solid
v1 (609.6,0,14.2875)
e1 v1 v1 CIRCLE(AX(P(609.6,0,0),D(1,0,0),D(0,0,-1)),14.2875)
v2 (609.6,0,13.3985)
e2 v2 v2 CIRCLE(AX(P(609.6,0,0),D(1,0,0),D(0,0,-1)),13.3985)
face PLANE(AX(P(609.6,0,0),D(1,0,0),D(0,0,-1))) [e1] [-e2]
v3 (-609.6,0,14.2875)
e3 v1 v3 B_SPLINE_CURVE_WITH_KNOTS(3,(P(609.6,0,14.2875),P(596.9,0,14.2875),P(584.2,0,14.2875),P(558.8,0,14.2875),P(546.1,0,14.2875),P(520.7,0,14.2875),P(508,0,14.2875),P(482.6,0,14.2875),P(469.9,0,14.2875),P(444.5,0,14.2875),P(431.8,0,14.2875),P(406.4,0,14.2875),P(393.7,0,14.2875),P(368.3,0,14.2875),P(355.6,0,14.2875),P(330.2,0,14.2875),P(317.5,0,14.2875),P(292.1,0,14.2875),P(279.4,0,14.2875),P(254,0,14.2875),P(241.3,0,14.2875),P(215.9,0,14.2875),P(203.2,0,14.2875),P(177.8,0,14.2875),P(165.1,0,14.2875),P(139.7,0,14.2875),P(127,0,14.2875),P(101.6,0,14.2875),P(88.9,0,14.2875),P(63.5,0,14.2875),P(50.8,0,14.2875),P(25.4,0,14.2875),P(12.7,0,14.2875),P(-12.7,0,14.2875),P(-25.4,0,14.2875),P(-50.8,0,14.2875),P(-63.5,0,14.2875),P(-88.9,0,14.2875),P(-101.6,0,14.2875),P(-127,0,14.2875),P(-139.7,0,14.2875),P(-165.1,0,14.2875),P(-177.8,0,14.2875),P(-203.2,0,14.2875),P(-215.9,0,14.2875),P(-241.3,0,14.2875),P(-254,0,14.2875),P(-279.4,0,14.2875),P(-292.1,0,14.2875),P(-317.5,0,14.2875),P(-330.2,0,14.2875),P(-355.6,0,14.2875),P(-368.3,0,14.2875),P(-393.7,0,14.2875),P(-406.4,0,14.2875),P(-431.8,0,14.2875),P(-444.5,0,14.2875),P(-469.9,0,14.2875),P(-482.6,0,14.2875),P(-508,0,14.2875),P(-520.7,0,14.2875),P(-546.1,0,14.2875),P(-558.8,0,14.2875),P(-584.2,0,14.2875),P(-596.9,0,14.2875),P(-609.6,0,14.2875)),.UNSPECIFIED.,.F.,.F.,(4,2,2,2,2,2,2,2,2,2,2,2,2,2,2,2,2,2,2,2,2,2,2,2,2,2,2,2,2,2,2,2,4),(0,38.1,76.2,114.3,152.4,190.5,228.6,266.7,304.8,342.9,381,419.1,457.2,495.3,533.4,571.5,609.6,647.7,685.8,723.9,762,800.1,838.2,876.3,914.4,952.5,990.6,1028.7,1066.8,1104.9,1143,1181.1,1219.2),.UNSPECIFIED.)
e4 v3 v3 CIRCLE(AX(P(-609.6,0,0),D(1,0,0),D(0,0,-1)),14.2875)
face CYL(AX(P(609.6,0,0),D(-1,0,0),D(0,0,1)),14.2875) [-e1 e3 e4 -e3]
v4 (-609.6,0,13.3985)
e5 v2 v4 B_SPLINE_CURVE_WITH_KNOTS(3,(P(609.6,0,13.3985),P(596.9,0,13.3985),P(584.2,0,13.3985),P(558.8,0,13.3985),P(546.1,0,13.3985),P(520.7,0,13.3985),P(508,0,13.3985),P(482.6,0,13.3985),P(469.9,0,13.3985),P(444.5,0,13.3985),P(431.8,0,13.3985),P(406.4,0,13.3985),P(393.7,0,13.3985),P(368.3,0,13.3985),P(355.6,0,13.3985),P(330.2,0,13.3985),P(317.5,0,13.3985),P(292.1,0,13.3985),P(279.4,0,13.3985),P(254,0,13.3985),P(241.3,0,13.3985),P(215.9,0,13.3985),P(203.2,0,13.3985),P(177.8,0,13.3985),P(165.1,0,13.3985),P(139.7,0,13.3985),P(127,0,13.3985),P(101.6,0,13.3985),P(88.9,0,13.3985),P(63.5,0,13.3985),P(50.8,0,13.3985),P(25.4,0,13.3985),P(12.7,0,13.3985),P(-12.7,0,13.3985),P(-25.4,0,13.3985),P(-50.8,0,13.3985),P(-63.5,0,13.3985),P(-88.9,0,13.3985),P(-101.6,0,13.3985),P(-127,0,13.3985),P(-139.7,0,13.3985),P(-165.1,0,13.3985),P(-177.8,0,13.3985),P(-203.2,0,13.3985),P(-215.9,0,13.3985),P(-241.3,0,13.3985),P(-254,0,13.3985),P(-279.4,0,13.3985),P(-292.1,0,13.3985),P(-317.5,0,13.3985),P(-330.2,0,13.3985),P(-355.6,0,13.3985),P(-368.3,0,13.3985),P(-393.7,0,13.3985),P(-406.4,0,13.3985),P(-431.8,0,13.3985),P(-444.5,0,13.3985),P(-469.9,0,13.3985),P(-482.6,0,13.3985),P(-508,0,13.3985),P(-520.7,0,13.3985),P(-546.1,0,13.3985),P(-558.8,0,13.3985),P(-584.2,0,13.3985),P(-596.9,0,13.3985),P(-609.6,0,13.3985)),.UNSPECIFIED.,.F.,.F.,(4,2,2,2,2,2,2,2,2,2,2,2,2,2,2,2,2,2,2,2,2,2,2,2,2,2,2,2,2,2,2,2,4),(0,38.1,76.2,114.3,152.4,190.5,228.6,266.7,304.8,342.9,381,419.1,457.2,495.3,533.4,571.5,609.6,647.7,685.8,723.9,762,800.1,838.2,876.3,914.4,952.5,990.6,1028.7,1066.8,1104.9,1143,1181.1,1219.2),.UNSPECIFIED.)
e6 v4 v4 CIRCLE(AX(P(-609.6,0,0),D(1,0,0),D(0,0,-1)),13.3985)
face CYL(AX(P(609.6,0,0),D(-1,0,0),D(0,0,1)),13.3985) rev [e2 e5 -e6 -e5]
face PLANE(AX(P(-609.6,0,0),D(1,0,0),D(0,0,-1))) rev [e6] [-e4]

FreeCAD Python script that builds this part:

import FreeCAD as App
import Part
import Sketcher
from FreeCAD import Vector
Q = App.Units.Quantity

doc = App.newDocument("Part")
body = doc.addObject("PartDesign::Body", "Body")

# Sketch on YZ plane
sketch1 = doc.addObject("Sketcher::SketchObject", "Sketch")
body.addObject(sketch1)
sketch1.AttachmentSupport = (doc.YZ_Plane, [""])
sketch1.MapMode = "FlatFace"
sketch1.addGeometry(Part.Circle(Vector(0, 0, 0), Vector(0, 0, 1), 14), False)
sketch1.addGeometry(Part.Circle(Vector(0, 0, 0), Vector(0, 0, 1), 13), False)
sketch1.addConstraint(Sketcher.Constraint("Coincident", 0, 3, -1, 1))
sketch1.addConstraint(Sketcher.Constraint("Coincident", 1, 3, -1, 1))
sketch1.addConstraint(Sketcher.Constraint("Diameter", 0, Q("1.125 in")))
sketch1.addConstraint(Sketcher.Constraint("Diameter", 1, Q("1.055 in")))
pad1 = doc.addObject("PartDesign::Pad", "Pad")
body.addObject(pad1)
pad1.Profile = sketch1
pad1.Length = Q("48 in")
pad1.Midplane = True

doc.recompute()
